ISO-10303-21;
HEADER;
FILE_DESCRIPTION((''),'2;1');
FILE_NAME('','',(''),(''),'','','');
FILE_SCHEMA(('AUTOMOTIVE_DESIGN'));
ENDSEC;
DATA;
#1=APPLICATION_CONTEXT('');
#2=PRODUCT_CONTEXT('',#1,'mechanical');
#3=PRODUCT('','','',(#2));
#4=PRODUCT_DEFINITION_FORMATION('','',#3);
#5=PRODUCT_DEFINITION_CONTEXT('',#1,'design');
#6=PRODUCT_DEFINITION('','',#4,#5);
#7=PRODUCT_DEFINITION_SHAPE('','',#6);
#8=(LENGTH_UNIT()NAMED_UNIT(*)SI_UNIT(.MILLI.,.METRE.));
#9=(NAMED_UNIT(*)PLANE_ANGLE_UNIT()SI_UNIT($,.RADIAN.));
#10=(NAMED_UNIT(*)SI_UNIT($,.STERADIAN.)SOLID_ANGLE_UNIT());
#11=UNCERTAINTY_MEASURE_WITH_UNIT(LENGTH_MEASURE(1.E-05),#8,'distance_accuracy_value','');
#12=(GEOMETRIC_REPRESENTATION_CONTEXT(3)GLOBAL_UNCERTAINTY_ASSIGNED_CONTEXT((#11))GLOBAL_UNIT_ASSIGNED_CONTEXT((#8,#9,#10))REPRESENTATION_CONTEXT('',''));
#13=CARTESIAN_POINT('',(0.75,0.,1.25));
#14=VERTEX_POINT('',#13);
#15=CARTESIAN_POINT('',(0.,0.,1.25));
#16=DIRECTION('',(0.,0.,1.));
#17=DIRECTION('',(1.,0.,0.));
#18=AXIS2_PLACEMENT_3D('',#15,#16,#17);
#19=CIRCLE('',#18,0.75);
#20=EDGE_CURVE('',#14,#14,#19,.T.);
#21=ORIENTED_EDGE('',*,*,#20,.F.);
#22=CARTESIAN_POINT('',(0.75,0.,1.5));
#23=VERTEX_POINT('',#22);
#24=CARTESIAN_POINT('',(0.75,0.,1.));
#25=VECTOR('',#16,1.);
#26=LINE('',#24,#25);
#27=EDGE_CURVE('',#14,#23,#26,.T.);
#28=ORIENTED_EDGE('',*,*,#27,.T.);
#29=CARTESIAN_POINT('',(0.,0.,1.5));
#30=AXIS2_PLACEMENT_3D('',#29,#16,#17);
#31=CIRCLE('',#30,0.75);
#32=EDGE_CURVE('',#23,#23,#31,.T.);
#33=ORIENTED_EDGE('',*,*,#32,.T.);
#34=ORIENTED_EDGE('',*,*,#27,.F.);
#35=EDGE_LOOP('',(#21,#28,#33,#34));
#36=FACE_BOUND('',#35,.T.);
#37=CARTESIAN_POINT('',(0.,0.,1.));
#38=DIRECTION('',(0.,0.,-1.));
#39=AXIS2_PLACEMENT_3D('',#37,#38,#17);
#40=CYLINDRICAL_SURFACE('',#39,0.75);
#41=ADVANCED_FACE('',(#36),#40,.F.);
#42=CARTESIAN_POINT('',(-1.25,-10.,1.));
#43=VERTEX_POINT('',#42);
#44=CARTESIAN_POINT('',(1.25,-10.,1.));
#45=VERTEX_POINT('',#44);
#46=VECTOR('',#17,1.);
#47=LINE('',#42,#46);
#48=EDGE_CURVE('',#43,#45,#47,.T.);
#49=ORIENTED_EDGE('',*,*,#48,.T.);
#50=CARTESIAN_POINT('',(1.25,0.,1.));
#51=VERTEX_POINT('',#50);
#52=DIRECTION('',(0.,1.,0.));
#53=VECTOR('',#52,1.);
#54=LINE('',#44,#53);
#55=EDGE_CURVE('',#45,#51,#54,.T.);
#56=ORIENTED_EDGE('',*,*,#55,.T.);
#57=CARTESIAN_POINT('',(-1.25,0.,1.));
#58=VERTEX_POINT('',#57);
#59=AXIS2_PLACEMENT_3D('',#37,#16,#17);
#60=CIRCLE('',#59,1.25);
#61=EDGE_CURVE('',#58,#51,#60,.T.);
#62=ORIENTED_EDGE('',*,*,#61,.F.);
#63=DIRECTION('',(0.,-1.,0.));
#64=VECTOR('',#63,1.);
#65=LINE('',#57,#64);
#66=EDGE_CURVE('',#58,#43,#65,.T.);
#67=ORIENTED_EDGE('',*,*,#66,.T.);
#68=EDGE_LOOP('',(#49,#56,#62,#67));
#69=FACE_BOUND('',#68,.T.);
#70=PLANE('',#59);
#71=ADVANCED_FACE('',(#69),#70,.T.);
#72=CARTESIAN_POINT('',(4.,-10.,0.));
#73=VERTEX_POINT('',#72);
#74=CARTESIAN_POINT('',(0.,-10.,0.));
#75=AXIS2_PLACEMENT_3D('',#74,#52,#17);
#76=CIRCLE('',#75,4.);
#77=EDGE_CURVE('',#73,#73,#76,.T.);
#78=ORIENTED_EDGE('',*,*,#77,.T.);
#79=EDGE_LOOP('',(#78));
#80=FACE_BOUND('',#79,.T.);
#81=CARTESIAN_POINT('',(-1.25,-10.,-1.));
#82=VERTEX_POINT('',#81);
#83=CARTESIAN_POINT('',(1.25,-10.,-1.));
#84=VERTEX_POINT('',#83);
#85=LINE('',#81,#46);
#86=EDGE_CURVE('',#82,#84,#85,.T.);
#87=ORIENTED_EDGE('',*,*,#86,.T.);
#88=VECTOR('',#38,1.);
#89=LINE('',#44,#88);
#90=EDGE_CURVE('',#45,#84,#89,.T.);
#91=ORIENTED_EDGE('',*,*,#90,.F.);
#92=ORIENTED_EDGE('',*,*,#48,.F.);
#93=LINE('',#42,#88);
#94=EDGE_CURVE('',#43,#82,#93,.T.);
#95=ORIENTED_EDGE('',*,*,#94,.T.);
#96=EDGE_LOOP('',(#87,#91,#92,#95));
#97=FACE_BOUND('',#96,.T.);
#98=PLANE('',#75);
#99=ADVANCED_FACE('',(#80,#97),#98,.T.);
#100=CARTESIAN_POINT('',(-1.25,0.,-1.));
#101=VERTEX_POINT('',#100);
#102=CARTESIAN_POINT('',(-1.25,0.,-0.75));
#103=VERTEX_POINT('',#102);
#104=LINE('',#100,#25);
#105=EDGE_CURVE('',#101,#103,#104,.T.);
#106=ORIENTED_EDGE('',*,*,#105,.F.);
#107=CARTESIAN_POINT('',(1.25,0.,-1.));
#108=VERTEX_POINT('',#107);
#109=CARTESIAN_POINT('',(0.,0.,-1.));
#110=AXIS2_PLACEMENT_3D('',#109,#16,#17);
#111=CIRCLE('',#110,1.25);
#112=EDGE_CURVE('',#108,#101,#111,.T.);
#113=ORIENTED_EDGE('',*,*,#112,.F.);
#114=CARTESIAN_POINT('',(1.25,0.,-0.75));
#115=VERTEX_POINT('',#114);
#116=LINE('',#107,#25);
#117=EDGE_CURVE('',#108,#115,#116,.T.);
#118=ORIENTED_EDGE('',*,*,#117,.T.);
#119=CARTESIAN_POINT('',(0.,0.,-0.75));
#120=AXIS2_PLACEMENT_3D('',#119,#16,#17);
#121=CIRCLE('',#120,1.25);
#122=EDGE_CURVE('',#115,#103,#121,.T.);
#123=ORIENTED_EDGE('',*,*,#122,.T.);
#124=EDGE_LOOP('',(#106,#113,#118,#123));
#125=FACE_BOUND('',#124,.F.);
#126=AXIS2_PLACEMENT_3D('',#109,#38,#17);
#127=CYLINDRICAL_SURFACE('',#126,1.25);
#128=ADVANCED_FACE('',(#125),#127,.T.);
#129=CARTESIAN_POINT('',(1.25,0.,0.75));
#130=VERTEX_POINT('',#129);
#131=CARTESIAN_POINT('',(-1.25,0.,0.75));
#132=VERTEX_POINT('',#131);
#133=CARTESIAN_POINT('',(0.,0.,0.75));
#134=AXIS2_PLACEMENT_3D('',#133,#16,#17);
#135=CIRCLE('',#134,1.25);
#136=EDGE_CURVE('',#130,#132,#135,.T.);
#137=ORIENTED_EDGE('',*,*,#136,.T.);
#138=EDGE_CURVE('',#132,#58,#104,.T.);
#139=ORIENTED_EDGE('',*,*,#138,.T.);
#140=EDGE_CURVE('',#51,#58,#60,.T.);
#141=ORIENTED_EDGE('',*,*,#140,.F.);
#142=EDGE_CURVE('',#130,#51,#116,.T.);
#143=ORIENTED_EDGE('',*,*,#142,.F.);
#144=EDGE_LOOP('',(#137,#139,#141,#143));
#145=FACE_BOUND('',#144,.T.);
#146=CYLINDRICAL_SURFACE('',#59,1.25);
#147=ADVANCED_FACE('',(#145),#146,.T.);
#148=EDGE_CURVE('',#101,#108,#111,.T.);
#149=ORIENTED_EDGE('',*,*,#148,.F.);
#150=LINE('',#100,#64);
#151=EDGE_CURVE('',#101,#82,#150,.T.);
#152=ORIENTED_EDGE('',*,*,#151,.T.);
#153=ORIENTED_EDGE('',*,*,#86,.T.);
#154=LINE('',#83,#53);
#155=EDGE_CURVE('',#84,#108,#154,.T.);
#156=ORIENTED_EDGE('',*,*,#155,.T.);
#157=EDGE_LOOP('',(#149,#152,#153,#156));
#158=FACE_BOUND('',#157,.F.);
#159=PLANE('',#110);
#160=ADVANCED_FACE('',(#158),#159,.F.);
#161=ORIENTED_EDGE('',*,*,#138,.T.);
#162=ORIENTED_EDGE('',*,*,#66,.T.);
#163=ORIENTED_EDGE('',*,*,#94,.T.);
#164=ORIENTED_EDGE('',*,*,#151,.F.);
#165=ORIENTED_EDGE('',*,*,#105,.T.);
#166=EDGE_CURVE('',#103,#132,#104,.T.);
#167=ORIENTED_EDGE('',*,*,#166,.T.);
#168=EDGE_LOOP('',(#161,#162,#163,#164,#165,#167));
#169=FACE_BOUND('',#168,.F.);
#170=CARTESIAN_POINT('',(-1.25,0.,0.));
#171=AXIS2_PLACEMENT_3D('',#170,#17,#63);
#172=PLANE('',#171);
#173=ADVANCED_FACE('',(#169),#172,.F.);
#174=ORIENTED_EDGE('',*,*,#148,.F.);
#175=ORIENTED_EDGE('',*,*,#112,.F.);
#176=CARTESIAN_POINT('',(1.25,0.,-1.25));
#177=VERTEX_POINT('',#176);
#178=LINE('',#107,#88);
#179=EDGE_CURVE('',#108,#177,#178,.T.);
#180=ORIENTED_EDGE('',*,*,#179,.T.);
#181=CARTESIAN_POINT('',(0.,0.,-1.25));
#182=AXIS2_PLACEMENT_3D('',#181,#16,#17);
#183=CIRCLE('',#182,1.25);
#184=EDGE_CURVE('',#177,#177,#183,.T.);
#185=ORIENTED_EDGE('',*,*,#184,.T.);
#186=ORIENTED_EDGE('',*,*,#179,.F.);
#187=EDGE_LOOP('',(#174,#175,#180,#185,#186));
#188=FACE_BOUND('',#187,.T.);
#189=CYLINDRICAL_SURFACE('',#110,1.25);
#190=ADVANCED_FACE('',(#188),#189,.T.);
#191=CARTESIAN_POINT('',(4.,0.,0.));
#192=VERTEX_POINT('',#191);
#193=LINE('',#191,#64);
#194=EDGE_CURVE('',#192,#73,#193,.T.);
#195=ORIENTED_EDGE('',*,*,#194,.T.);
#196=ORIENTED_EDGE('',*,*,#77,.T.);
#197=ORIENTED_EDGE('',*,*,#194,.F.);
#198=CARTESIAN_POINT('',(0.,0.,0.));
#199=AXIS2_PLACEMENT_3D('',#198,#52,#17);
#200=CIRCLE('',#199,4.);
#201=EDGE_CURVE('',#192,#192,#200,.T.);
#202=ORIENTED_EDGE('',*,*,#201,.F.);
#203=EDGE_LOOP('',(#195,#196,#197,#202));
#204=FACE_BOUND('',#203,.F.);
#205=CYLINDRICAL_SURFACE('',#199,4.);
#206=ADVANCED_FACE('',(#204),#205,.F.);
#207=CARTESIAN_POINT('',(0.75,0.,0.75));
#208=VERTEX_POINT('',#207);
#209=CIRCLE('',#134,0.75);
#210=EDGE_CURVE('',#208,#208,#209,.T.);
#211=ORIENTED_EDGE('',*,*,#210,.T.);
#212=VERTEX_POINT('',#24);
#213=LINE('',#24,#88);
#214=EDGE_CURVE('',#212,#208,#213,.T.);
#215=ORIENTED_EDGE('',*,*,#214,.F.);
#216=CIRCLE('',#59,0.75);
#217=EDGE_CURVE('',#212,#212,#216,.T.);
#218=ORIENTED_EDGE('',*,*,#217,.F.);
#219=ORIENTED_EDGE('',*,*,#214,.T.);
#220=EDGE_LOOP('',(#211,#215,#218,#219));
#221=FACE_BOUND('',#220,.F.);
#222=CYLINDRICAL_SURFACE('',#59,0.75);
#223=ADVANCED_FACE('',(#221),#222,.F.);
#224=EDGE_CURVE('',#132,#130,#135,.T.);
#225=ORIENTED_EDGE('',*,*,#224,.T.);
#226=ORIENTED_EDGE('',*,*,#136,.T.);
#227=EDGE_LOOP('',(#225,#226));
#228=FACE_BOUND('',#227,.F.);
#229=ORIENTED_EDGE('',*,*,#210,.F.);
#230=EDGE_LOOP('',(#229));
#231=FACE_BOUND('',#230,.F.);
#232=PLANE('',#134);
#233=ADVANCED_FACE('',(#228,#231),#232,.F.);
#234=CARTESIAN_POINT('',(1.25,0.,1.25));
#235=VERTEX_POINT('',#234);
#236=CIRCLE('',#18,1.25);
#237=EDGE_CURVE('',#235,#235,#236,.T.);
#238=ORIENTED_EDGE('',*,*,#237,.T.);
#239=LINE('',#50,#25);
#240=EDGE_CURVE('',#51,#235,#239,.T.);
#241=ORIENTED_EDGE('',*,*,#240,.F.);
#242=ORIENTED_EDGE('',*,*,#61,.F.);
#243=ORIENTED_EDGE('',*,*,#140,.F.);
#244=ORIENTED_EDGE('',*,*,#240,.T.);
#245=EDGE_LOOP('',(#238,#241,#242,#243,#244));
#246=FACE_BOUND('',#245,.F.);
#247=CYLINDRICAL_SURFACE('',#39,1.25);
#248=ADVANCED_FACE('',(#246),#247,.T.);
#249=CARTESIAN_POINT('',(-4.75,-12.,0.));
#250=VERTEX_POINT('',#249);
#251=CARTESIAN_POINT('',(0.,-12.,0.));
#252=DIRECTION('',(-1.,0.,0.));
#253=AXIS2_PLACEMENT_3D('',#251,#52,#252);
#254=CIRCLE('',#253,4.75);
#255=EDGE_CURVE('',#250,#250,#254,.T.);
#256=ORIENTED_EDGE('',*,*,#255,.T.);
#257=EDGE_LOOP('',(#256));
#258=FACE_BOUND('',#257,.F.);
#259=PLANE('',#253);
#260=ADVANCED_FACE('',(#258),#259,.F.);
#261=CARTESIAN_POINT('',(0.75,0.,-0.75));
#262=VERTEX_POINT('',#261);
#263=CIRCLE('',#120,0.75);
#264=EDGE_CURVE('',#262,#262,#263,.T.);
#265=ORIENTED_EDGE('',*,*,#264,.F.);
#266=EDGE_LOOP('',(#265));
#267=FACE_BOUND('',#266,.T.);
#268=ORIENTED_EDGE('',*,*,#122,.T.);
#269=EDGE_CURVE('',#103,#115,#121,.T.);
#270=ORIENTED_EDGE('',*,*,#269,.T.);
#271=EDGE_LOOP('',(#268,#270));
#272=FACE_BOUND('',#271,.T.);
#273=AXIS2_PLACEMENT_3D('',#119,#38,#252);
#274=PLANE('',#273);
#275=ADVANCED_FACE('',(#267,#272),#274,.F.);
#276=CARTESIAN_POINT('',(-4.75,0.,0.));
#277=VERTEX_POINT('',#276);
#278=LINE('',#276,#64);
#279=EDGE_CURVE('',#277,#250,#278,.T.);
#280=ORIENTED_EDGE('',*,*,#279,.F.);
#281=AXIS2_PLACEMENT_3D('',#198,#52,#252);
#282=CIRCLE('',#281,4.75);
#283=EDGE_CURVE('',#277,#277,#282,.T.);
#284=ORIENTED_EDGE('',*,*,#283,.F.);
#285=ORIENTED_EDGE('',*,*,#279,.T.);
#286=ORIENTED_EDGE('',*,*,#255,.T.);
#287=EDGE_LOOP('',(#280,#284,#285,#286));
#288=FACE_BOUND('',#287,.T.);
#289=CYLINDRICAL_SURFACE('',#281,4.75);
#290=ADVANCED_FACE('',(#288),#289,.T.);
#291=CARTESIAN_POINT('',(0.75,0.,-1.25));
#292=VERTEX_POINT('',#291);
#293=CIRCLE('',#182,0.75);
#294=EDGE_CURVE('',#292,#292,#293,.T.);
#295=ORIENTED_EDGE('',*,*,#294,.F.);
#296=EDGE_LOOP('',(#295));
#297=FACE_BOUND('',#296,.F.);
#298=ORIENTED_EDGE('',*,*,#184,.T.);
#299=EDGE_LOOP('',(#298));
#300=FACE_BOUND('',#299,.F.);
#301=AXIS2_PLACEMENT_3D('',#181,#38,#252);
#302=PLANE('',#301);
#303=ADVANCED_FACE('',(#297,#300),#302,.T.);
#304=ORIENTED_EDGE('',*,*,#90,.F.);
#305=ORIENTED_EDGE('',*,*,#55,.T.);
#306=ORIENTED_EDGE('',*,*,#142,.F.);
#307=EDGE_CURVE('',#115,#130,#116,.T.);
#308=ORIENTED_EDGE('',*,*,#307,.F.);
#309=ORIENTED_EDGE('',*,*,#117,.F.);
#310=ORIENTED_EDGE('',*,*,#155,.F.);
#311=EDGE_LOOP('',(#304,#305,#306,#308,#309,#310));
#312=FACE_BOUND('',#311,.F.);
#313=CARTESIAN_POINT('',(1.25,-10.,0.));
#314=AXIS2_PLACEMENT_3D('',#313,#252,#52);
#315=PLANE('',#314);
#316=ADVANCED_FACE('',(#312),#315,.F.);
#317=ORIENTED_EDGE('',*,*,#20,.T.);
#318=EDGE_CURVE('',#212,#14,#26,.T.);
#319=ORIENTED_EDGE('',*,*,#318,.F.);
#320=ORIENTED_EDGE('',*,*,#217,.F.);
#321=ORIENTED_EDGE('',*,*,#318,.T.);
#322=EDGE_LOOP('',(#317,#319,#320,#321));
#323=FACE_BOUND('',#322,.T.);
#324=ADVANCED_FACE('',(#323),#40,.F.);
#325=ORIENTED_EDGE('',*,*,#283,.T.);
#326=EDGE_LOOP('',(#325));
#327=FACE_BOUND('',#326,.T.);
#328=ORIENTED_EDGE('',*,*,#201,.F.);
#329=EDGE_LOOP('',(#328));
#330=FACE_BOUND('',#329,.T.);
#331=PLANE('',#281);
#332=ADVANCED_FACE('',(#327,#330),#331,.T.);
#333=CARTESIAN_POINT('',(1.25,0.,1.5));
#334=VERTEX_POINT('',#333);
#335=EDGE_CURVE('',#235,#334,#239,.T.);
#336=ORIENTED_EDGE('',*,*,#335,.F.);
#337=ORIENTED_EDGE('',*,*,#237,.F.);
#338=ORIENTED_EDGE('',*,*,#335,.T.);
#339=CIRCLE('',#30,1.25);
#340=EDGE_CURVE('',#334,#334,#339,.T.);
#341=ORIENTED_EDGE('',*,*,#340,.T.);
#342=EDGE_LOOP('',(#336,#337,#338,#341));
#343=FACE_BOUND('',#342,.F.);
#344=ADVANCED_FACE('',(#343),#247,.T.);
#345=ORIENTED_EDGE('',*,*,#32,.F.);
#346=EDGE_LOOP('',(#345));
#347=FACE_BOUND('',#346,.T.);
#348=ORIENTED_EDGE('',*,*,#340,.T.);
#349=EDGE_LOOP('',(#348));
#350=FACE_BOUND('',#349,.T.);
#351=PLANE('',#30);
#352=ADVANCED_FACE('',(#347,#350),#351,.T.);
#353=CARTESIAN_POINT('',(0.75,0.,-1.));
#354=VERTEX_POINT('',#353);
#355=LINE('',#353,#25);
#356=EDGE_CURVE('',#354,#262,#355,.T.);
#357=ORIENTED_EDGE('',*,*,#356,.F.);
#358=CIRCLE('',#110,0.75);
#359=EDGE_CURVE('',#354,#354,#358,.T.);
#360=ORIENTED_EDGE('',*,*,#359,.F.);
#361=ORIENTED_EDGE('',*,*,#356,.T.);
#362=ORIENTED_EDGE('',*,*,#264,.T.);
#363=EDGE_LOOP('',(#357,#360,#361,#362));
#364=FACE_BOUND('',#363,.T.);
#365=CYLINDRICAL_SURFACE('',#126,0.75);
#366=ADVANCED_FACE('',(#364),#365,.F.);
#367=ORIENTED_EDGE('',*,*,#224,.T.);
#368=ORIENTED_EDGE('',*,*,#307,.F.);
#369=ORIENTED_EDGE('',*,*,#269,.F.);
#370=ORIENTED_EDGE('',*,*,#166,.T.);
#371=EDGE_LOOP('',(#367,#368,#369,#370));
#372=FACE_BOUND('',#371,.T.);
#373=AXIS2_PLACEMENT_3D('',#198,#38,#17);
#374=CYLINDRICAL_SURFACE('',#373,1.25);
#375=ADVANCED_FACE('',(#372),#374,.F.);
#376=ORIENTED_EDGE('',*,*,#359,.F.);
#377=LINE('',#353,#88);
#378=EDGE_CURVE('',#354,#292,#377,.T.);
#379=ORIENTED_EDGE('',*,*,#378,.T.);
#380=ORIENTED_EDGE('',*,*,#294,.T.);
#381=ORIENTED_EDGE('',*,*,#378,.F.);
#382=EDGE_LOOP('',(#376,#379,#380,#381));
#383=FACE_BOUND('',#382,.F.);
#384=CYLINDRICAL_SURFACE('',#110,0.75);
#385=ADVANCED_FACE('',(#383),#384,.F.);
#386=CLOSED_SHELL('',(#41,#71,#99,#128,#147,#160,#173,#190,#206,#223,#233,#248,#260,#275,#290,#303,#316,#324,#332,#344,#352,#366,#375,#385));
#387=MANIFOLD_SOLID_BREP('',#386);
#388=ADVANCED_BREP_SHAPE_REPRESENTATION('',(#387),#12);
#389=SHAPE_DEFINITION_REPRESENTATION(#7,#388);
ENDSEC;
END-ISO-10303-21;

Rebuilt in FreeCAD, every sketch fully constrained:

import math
import FreeCAD as App
import Part
import Sketcher

doc = App.newDocument("Part")
body = doc.addObject("PartDesign::Body", "Body")

# Sketch on XZ plane
sketch1 = doc.addObject("Sketcher::SketchObject", "Sketch")
body.addObject(sketch1)
sketch1.AttachmentSupport = (doc.XZ_Plane, [""])
sketch1.MapMode = "FlatFace"
sketch1.addGeometry(Part.Circle(App.Vector(0, 0, 0), App.Vector(0, 0, 1), 4.8), False)
sketch1.addConstraint([
    Sketcher.Constraint("Coincident", 0, 3, -1, 1),
    Sketcher.Constraint("Diameter", 0, 9.5),
])
pad1 = doc.addObject("PartDesign::Pad", "Pad")
body.addObject(pad1)
pad1.Profile = sketch1
pad1.Length = 12

# Sketch on XZ plane
sketch2 = doc.addObject("Sketcher::SketchObject", "Sketch001")
body.addObject(sketch2)
sketch2.AttachmentSupport = (doc.XZ_Plane, [""])
sketch2.MapMode = "FlatFace"
sketch2.addGeometry(Part.Circle(App.Vector(0, 0, 0), App.Vector(0, 0, 1), 4), False)
sketch2.addConstraint([
    Sketcher.Constraint("Coincident", 0, 3, -1, 1),
    Sketcher.Constraint("Diameter", 0, 8.0),
])
pocket1 = doc.addObject("PartDesign::Pocket", "Pocket")
body.addObject(pocket1)
pocket1.Profile = sketch2
pocket1.Length = 10
pocket1.Reversed = True

# Sketch on XY plane
sketch3 = doc.addObject("Sketcher::SketchObject", "Sketch002")
body.addObject(sketch3)
sketch3.AttachmentSupport = (doc.XY_Plane, [""])
sketch3.MapMode = "FlatFace"
sketch3.addGeometry([
    Part.LineSegment(App.Vector(1.2, -10, 0), App.Vector(1.2, 0, 0)),
    Part.ArcOfCircle(Part.Circle(App.Vector(0, 0, 0), App.Vector(0, 0, 1), 1.2), math.radians(180), math.radians(360)),
    Part.LineSegment(App.Vector(-1.2, 0, 0), App.Vector(-1.2, -10, 0)),
    Part.LineSegment(App.Vector(-1.2, -10, 0), App.Vector(1.2, -10, 0)),
], False)
sketch3.addConstraint([
    Sketcher.Constraint("Tangent", 0, 2, 1, 2),
    Sketcher.Constraint("Tangent", 1, 1, 2, 1),
    Sketcher.Constraint("Coincident", 2, 2, 3, 1),
    Sketcher.Constraint("Coincident", 3, 2, 0, 1),
    Sketcher.Constraint("Vertical", 0),
    Sketcher.Constraint("Vertical", 2),
    Sketcher.Constraint("Horizontal", 3),
    Sketcher.Constraint("Coincident", 1, 3, -1, 1),
    Sketcher.Constraint("DistanceY", 0, 1, 0, 2, 10.0),
    Sketcher.Constraint("Radius", 1, 1.25),
])
pad2 = doc.addObject("PartDesign::Pad", "Pad001")
body.addObject(pad2)
pad2.Profile = sketch3
pad2.Length = 2
pad2.Midplane = True

# Sketch on XY plane
sketch4 = doc.addObject("Sketcher::SketchObject", "Sketch003")
body.addObject(sketch4)
sketch4.AttachmentSupport = (doc.XY_Plane, [""])
sketch4.MapMode = "FlatFace"
sketch4.AttachmentOffset = App.Placement(App.Vector(0, 0, 1), App.Rotation())
sketch4.addGeometry([
    Part.Circle(App.Vector(0, 0, 0), App.Vector(0, 0, 1), 1.2),
    Part.Circle(App.Vector(0, 0, 0), App.Vector(0, 0, 1), 0.8),
], False)
sketch4.addConstraint([
    Sketcher.Constraint("Coincident", 0, 3, -1, 1),
    Sketcher.Constraint("Coincident", 1, 3, -1, 1),
    Sketcher.Constraint("Diameter", 0, 2.5),
    Sketcher.Constraint("Diameter", 1, 1.5),
])
pad3 = doc.addObject("PartDesign::Pad", "Pad002")
body.addObject(pad3)
pad3.Profile = sketch4
pad3.Length = 0.5
pad3.Midplane = True

# Sketch on XY plane
sketch5 = doc.addObject("Sketcher::SketchObject", "Sketch004")
body.addObject(sketch5)
sketch5.AttachmentSupport = (doc.XY_Plane, [""])
sketch5.MapMode = "FlatFace"
sketch5.AttachmentOffset = App.Placement(App.Vector(0, 0, 1), App.Rotation())
sketch5.addGeometry([
    Part.Circle(App.Vector(0, 0, 0), App.Vector(0, 0, 1), 1.2),
    Part.Circle(App.Vector(0, 0, 0), App.Vector(0, 0, 1), 0.8),
], False)
sketch5.addConstraint([
    Sketcher.Constraint("Coincident", 0, 3, -1, 1),
    Sketcher.Constraint("Coincident", 1, 3, -1, 1),
    Sketcher.Constraint("Diameter", 0, 2.5),
    Sketcher.Constraint("Diameter", 1, 1.5),
])
pad4 = doc.addObject("PartDesign::Pad", "Pad003")
body.addObject(pad4)
pad4.Profile = sketch5
pad4.Length = 0.5
doc.recompute()

mirrored = doc.addObject("PartDesign::Mirrored", "Mirrored")
body.addObject(mirrored)
mirrored.Originals = [pad3]
mirrored.MirrorPlane = (doc.XY_Plane, [""])
body.Tip = mirrored

doc.recompute()
